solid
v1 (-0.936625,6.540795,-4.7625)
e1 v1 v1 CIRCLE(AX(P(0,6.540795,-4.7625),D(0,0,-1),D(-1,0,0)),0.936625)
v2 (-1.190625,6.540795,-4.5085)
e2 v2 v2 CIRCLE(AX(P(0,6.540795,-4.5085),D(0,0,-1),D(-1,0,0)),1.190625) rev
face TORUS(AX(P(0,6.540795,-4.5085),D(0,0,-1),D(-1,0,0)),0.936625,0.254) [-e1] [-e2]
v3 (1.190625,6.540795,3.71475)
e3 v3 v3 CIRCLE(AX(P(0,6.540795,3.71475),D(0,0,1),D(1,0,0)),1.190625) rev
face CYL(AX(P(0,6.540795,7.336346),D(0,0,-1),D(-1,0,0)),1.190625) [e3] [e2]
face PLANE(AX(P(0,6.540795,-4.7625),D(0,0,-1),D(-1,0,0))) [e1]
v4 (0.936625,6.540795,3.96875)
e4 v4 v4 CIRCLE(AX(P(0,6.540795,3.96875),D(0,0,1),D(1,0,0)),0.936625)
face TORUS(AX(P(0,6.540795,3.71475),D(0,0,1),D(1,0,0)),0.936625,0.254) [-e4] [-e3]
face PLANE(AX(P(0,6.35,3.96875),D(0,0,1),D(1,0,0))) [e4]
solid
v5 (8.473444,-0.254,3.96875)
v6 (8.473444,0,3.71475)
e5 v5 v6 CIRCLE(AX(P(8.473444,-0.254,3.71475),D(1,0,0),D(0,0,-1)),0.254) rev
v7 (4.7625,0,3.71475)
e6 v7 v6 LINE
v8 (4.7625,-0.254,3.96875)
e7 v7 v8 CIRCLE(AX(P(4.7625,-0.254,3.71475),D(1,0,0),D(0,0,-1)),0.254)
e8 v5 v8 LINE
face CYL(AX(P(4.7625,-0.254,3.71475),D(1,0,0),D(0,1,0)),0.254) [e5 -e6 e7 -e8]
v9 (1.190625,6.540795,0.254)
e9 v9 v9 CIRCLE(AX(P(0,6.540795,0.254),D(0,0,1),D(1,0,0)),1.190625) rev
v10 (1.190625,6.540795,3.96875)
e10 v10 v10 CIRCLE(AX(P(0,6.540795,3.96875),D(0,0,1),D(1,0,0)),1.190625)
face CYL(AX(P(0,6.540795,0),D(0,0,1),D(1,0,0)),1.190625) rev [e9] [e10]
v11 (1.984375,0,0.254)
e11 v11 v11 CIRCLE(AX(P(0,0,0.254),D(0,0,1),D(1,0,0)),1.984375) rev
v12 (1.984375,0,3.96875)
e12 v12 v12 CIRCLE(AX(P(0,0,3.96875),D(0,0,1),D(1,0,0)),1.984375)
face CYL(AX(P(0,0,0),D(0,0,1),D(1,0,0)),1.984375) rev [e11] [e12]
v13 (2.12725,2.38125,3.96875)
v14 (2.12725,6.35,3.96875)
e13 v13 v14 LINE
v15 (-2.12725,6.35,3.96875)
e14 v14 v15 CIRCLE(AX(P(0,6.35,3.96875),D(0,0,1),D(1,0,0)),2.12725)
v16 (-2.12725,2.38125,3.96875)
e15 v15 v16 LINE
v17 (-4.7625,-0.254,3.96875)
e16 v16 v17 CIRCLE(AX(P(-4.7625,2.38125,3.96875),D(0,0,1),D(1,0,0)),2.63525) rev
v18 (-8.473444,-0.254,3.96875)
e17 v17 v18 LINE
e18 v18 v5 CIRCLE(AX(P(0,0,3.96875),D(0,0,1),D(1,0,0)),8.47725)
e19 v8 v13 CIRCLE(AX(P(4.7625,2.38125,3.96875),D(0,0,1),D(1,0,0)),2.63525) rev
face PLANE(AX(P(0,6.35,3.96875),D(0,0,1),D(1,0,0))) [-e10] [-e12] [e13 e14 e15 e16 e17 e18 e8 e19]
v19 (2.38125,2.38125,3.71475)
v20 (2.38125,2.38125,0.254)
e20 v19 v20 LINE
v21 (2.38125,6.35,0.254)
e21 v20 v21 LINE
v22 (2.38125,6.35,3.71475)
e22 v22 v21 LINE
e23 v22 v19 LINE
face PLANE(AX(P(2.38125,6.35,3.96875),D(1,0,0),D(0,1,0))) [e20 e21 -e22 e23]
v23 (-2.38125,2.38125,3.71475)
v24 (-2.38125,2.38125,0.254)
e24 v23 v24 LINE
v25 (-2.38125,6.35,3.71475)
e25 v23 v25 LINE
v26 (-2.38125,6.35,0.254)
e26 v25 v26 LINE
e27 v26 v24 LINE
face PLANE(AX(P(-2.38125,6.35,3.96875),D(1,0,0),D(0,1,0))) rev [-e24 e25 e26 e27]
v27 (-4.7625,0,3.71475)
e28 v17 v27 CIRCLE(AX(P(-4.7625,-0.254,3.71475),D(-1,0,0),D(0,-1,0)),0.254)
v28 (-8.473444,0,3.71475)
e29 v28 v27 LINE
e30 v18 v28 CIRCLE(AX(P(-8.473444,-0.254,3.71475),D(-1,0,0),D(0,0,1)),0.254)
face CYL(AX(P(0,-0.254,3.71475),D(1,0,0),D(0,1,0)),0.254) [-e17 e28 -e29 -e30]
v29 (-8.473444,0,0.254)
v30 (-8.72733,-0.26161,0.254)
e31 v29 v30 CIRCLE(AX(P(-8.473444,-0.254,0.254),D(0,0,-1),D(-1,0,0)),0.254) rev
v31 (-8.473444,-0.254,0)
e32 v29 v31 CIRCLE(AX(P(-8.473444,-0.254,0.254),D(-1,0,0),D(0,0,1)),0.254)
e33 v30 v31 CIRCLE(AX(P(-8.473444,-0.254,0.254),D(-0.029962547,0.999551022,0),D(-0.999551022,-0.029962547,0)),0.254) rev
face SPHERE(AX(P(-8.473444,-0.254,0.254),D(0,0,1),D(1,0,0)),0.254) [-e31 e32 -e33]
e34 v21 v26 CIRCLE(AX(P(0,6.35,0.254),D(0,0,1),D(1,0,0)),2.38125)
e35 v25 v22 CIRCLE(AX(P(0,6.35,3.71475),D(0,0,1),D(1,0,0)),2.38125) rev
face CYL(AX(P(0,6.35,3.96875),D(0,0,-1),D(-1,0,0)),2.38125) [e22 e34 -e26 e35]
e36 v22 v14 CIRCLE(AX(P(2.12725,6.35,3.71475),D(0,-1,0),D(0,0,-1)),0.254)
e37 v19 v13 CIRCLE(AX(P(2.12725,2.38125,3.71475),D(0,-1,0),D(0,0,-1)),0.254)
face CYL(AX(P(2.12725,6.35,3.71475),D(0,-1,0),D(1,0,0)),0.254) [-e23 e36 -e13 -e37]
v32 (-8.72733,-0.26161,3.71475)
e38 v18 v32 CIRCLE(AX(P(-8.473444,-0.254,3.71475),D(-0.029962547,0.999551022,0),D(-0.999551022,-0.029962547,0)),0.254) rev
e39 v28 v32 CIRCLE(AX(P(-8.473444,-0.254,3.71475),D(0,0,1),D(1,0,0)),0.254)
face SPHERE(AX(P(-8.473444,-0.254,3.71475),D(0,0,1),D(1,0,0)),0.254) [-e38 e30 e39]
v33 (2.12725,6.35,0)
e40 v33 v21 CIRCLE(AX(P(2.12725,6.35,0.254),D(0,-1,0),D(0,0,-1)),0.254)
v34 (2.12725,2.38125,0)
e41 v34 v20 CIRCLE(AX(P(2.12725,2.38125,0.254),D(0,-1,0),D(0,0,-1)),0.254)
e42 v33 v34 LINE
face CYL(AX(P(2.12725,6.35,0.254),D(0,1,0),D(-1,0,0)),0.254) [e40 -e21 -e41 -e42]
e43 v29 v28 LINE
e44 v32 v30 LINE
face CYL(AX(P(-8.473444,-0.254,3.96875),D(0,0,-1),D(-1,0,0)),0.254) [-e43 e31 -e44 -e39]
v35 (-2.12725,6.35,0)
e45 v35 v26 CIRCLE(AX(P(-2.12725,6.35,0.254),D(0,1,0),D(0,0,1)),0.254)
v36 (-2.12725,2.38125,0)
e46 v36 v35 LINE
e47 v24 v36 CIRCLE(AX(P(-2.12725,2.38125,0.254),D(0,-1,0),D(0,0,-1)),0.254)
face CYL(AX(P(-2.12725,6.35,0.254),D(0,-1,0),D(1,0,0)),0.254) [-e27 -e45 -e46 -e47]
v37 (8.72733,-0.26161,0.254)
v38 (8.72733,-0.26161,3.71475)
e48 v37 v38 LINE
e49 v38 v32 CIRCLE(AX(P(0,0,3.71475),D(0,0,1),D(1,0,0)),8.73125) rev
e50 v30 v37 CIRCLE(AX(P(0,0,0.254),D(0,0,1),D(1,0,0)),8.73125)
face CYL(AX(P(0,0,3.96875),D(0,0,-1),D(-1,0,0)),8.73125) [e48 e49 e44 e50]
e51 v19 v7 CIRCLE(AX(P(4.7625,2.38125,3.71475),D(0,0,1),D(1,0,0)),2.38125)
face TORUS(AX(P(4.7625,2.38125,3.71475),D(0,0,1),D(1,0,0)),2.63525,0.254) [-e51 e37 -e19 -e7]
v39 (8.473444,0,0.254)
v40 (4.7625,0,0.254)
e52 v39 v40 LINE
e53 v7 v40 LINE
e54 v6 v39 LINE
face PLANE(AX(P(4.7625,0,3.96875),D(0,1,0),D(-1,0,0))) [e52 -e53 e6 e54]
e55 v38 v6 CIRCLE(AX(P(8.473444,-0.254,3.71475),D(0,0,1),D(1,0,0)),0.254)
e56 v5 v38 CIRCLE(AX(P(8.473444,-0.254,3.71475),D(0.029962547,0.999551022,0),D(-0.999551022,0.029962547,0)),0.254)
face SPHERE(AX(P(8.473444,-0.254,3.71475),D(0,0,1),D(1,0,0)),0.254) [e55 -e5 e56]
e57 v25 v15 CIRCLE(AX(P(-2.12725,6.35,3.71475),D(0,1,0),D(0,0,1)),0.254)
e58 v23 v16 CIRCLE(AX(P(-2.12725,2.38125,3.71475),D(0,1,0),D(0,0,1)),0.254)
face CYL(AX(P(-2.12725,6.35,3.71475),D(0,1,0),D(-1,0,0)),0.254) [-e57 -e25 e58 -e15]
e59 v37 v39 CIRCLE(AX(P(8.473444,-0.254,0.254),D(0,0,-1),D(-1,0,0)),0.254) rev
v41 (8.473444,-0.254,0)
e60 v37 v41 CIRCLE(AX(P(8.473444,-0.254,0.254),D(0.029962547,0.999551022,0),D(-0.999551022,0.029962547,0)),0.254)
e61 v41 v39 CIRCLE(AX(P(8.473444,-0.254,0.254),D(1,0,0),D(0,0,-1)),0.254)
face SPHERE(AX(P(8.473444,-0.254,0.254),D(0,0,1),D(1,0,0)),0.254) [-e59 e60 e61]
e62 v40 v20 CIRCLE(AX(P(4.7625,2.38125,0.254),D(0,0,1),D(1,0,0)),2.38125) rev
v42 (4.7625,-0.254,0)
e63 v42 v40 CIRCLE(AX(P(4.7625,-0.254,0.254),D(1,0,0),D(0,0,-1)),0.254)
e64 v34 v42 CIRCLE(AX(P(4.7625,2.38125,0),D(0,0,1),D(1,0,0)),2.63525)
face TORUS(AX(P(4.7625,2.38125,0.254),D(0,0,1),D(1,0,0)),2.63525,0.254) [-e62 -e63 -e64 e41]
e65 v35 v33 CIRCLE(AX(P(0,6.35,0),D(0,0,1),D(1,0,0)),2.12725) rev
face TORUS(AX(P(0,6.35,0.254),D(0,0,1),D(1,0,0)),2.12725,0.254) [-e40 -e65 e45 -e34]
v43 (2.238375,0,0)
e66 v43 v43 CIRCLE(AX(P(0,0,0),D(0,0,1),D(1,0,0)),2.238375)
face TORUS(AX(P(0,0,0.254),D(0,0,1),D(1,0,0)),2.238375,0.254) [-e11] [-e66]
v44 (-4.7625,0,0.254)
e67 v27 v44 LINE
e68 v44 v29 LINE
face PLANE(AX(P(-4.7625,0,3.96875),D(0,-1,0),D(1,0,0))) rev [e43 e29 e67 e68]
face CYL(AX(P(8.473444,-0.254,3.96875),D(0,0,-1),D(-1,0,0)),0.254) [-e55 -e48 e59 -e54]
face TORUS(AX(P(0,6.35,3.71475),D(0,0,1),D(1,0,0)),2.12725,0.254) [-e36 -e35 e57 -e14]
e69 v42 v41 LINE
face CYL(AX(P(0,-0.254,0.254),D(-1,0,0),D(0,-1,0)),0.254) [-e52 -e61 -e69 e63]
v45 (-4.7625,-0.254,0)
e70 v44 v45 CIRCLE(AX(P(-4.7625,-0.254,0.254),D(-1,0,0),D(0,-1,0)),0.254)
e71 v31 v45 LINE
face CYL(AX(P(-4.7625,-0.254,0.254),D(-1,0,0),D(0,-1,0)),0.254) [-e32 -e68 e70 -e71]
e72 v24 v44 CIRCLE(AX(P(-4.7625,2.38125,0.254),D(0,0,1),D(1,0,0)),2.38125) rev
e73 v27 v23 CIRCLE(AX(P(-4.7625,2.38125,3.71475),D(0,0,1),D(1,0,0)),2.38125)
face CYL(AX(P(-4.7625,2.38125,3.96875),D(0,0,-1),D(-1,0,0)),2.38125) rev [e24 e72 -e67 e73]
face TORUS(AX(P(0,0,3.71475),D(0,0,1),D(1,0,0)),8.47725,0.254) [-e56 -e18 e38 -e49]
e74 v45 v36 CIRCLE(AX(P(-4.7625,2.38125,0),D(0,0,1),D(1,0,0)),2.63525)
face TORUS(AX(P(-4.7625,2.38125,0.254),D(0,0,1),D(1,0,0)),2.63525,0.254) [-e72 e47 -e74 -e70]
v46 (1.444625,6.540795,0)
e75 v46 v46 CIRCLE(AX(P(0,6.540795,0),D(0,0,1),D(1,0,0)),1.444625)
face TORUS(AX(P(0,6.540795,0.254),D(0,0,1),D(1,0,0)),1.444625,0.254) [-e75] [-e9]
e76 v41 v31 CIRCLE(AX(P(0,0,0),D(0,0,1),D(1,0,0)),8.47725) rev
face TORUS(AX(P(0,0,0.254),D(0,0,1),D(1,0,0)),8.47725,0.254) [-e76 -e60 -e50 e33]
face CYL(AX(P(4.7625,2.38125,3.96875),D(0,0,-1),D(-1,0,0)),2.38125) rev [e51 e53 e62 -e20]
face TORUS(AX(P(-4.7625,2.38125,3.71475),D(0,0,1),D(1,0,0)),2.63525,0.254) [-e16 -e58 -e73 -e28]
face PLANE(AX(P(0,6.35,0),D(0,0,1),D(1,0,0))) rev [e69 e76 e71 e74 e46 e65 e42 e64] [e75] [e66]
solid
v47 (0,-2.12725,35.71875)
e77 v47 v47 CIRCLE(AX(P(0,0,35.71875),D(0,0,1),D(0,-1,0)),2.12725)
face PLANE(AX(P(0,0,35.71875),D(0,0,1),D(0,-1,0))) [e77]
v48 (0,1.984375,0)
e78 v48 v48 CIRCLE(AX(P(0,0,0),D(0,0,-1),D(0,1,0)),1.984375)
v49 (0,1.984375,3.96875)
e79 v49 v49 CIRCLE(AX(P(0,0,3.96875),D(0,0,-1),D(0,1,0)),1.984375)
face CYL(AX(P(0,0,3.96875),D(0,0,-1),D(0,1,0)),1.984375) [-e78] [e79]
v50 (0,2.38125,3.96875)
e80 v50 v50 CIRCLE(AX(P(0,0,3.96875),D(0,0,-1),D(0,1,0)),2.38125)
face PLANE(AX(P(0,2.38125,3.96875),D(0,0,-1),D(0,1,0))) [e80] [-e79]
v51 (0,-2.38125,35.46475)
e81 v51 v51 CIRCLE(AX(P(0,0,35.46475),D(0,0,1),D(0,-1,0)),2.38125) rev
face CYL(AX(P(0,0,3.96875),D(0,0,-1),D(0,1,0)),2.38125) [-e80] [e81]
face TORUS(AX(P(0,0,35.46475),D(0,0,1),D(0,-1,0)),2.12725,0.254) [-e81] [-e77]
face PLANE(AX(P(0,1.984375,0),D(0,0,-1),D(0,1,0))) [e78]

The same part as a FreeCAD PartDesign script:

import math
import FreeCAD as App
import Part
import Sketcher
from FreeCAD import Vector
Q = App.Units.Quantity


def edges_at(feature, points):
    """Names of the edges that pass closest to the given points."""
    edges = feature.Shape.Edges
    near = lambda p: min(range(len(edges)), key=lambda i: edges[i].distToShape(Part.Vertex(*p))[0])
    return sorted({f"Edge{near(p) + 1}" for p in points})

doc = App.newDocument("Part")
body = doc.addObject("PartDesign::Body", "Body")

sketch1 = body.newObject("Sketcher::SketchObject", "Sketch")
sketch1.AttachmentSupport = (doc.getObject("XY_Plane"), [""])
sketch1.MapMode = "FlatFace"
sketch1.addGeometry([
    Part.LineSegment(Vector(-2.4, 6.3, 0), Vector(-2.4, 2.4, 0)),
    Part.ArcOfCircle(Part.Circle(Vector(-4.8, 2.4, 0), Vector(0, 0, 1), 2.4), math.radians(-90), math.radians(0)),
    Part.LineSegment(Vector(-4.8, 0, 0), Vector(-8.7, 0, 0)),
    Part.ArcOfCircle(Part.Circle(Vector(0, 0, 0), Vector(0, 0, 1), 8.7), math.radians(180), math.radians(360)),
    Part.LineSegment(Vector(8.7, 0, 0), Vector(4.8, 0, 0)),
    Part.ArcOfCircle(Part.Circle(Vector(4.8, 2.4, 0), Vector(0, 0, 1), 2.4), math.radians(180), math.radians(270)),
    Part.LineSegment(Vector(2.4, 2.4, 0), Vector(2.4, 6.3, 0)),
    Part.ArcOfCircle(Part.Circle(Vector(0, 6.3, 0), Vector(0, 0, 1), 2.4), math.radians(0), math.radians(180)),
], False)
sketch1.addConstraint([
    Sketcher.Constraint("Tangent", 0, 2, 1, 2),
    Sketcher.Constraint("Tangent", 1, 1, 2, 1),
    Sketcher.Constraint("Coincident", 2, 2, 3, 1),
    Sketcher.Constraint("Coincident", 3, 2, 4, 1),
    Sketcher.Constraint("Tangent", 4, 2, 5, 2),
    Sketcher.Constraint("Tangent", 5, 1, 6, 1),
    Sketcher.Constraint("Tangent", 6, 2, 7, 1),
    Sketcher.Constraint("Tangent", 7, 2, 0, 1),
    Sketcher.Constraint("Vertical", 0),
    Sketcher.Constraint("Horizontal", 2),
    Sketcher.Constraint("Horizontal", 4),
    Sketcher.Constraint("Vertical", 6),
    Sketcher.Constraint("Coincident", 3, 3, -1, 1),
    Sketcher.Constraint("Equal", 1, 5),
    Sketcher.Constraint("Equal", 5, 7),
    Sketcher.Constraint("Symmetric", 1, 1, 4, 2, -1, 1),
    Sketcher.Constraint("PointOnObject", 1, 1, -1),
    Sketcher.Constraint("Equal", 4, 0),
    Sketcher.Constraint("Radius", 1, Q("0.09375 in")),
    Sketcher.Constraint("Radius", 3, Q("0.34375 in")),
])
pad1 = body.newObject("PartDesign::Pad", "Pad")
pad1.Profile = sketch1
pad1.Length = Q("0.15625 in")

sketch2 = body.newObject("Sketcher::SketchObject", "Sketch001")
sketch2.AttachmentSupport = (doc.getObject("XY_Plane"), [""])
sketch2.MapMode = "FlatFace"
sketch2.AttachmentOffset = App.Placement(Vector(0, 0, 0.15625 * 25.4), App.Rotation())
sketch2.addGeometry([
    Part.Circle(Vector(0, 0, 0), Vector(0, 0, 1), 2),
    Part.Circle(Vector(0, 6.5, 0), Vector(0, 0, 1), 1.2),
], False)
sketch2.addConstraint([
    Sketcher.Constraint("Coincident", 0, 3, -1, 1),
    Sketcher.Constraint("PointOnObject", 1, 3, -2),
    Sketcher.Constraint("Diameter", 0, Q("0.15625 in")),
    Sketcher.Constraint("Diameter", 1, Q("0.09375 in")),
    Sketcher.Constraint("DistanceY", -1, 1, 1, 3, Q("6.540795 mm")),
])
pocket1 = body.newObject("PartDesign::Pocket", "Pocket")
pocket1.Profile = sketch2
pocket1.Type = "ThroughAll"
doc.recompute()

fillet = body.newObject("PartDesign::Fillet", "Fillet")
fillet.Base = (pocket1, edges_at(pocket1, [
    (-6.747, 0, 0),
    (-3.079, 0.697, 0),
    (-2.381, 4.366, 0),
    (0, 8.731, 0),
    (-3.079, 0.697, 3.969),
    (8.731, 0, 1.984),
    (-8.731, 0, 1.984),
    (-6.747, 0, 3.969),
    (0, -8.731, 3.969),
    (6.747, 0, 3.969),
    (-1.984, 0, 0),
    (3.079, 0.697, 3.969),
    (-1.191, 6.541, 0),
    (2.381, 4.366, 3.969),
    (0, 8.731, 3.969),
    (2.381, 4.366, 0),
    (-2.381, 4.366, 3.969),
    (3.079, 0.697, 0),
    (6.747, 0, 0),
    (0, -8.731, 0),
]))
fillet.Radius = Q("0.01 in")
body2 = doc.addObject("PartDesign::Body", "Body001")

sketch3 = body2.newObject("Sketcher::SketchObject", "Sketch002")
sketch3.AttachmentSupport = (doc.getObject("XY_Plane001"), [""])
sketch3.MapMode = "FlatFace"
sketch3.addGeometry(Part.Circle(Vector(0, 6.5, 0), Vector(0, 0, 1), 1.2), False)
sketch3.addConstraint([
    Sketcher.Constraint("PointOnObject", 0, 3, -2),
    Sketcher.Constraint("Diameter", 0, Q("0.09375 in")),
    Sketcher.Constraint("DistanceY", -1, 1, 0, 3, Q("6.540795 mm")),
])
pad2 = body2.newObject("PartDesign::Pad", "Pad001")
pad2.Profile = sketch3
pad2.Type = "TwoLengths"
pad2.Length = Q("0.1875 in")
pad2.Length2 = Q("0.15625 in")
pad2.Reversed = True
doc.recompute()

fillet2 = body2.newObject("PartDesign::Fillet", "Fillet001")
fillet2.Base = (pad2, edges_at(pad2, [(1.191, 6.541, -4.763), (1.191, 6.541, 3.969)]))
fillet2.Radius = Q("0.01 in")
body3 = doc.addObject("PartDesign::Body", "Body002")

sketch4 = body3.newObject("Sketcher::SketchObject", "Sketch003")
sketch4.AttachmentSupport = (doc.getObject("YZ_Plane002"), [""])
sketch4.MapMode = "FlatFace"
sketch4.addGeometry([
    Part.LineSegment(Vector(2.38, 35.72, 0), Vector(0, 35.72, 0)),
    Part.LineSegment(Vector(0, 35.72, 0), Vector(0, 0, 0)),
    Part.LineSegment(Vector(0, 0, 0), Vector(1.98, 0, 0)),
    Part.LineSegment(Vector(1.98, 0, 0), Vector(1.98, 3.97, 0)),
    Part.LineSegment(Vector(1.98, 3.97, 0), Vector(2.38, 3.97, 0)),
    Part.LineSegment(Vector(2.38, 3.97, 0), Vector(2.38, 35.72, 0)),
], False)
sketch4.addConstraint([
    Sketcher.Constraint("Coincident", 0, 2, 1, 1),
    Sketcher.Constraint("Coincident", 1, 2, 2, 1),
    Sketcher.Constraint("Coincident", 2, 2, 3, 1),
    Sketcher.Constraint("Coincident", 3, 2, 4, 1),
    Sketcher.Constraint("Coincident", 4, 2, 5, 1),
    Sketcher.Constraint("Coincident", 5, 2, 0, 1),
    Sketcher.Constraint("Horizontal", 0),
    Sketcher.Constraint("Vertical", 1),
    Sketcher.Constraint("Horizontal", 2),
    Sketcher.Constraint("Vertical", 3),
    Sketcher.Constraint("Horizontal", 4),
    Sketcher.Constraint("Vertical", 5),
    Sketcher.Constraint("Coincident", 1, 2, -1, 1),
    Sketcher.Constraint("DistanceY", 5, 1, 5, 2, Q("1.25 in")),
    Sketcher.Constraint("DistanceX", 0, 2, 0, 1, Q("0.09375 in")),
    Sketcher.Constraint("DistanceX", 2, 1, 2, 2, Q("0.078125 in")),
    Sketcher.Constraint("DistanceY", 1, 2, 1, 1, Q("1.40625 in")),
])
revolution = body3.newObject("PartDesign::Revolution", "Revolution")
revolution.Profile = sketch4
revolution.ReferenceAxis = (sketch4, ["V_Axis"])
revolution.Angle = 360
doc.recompute()

fillet3 = body3.newObject("PartDesign::Fillet", "Fillet002")
fillet3.Base = (revolution, edges_at(revolution, [(0, -2.381, 35.719)]))
fillet3.Radius = Q("0.01 in")

doc.recompute()
